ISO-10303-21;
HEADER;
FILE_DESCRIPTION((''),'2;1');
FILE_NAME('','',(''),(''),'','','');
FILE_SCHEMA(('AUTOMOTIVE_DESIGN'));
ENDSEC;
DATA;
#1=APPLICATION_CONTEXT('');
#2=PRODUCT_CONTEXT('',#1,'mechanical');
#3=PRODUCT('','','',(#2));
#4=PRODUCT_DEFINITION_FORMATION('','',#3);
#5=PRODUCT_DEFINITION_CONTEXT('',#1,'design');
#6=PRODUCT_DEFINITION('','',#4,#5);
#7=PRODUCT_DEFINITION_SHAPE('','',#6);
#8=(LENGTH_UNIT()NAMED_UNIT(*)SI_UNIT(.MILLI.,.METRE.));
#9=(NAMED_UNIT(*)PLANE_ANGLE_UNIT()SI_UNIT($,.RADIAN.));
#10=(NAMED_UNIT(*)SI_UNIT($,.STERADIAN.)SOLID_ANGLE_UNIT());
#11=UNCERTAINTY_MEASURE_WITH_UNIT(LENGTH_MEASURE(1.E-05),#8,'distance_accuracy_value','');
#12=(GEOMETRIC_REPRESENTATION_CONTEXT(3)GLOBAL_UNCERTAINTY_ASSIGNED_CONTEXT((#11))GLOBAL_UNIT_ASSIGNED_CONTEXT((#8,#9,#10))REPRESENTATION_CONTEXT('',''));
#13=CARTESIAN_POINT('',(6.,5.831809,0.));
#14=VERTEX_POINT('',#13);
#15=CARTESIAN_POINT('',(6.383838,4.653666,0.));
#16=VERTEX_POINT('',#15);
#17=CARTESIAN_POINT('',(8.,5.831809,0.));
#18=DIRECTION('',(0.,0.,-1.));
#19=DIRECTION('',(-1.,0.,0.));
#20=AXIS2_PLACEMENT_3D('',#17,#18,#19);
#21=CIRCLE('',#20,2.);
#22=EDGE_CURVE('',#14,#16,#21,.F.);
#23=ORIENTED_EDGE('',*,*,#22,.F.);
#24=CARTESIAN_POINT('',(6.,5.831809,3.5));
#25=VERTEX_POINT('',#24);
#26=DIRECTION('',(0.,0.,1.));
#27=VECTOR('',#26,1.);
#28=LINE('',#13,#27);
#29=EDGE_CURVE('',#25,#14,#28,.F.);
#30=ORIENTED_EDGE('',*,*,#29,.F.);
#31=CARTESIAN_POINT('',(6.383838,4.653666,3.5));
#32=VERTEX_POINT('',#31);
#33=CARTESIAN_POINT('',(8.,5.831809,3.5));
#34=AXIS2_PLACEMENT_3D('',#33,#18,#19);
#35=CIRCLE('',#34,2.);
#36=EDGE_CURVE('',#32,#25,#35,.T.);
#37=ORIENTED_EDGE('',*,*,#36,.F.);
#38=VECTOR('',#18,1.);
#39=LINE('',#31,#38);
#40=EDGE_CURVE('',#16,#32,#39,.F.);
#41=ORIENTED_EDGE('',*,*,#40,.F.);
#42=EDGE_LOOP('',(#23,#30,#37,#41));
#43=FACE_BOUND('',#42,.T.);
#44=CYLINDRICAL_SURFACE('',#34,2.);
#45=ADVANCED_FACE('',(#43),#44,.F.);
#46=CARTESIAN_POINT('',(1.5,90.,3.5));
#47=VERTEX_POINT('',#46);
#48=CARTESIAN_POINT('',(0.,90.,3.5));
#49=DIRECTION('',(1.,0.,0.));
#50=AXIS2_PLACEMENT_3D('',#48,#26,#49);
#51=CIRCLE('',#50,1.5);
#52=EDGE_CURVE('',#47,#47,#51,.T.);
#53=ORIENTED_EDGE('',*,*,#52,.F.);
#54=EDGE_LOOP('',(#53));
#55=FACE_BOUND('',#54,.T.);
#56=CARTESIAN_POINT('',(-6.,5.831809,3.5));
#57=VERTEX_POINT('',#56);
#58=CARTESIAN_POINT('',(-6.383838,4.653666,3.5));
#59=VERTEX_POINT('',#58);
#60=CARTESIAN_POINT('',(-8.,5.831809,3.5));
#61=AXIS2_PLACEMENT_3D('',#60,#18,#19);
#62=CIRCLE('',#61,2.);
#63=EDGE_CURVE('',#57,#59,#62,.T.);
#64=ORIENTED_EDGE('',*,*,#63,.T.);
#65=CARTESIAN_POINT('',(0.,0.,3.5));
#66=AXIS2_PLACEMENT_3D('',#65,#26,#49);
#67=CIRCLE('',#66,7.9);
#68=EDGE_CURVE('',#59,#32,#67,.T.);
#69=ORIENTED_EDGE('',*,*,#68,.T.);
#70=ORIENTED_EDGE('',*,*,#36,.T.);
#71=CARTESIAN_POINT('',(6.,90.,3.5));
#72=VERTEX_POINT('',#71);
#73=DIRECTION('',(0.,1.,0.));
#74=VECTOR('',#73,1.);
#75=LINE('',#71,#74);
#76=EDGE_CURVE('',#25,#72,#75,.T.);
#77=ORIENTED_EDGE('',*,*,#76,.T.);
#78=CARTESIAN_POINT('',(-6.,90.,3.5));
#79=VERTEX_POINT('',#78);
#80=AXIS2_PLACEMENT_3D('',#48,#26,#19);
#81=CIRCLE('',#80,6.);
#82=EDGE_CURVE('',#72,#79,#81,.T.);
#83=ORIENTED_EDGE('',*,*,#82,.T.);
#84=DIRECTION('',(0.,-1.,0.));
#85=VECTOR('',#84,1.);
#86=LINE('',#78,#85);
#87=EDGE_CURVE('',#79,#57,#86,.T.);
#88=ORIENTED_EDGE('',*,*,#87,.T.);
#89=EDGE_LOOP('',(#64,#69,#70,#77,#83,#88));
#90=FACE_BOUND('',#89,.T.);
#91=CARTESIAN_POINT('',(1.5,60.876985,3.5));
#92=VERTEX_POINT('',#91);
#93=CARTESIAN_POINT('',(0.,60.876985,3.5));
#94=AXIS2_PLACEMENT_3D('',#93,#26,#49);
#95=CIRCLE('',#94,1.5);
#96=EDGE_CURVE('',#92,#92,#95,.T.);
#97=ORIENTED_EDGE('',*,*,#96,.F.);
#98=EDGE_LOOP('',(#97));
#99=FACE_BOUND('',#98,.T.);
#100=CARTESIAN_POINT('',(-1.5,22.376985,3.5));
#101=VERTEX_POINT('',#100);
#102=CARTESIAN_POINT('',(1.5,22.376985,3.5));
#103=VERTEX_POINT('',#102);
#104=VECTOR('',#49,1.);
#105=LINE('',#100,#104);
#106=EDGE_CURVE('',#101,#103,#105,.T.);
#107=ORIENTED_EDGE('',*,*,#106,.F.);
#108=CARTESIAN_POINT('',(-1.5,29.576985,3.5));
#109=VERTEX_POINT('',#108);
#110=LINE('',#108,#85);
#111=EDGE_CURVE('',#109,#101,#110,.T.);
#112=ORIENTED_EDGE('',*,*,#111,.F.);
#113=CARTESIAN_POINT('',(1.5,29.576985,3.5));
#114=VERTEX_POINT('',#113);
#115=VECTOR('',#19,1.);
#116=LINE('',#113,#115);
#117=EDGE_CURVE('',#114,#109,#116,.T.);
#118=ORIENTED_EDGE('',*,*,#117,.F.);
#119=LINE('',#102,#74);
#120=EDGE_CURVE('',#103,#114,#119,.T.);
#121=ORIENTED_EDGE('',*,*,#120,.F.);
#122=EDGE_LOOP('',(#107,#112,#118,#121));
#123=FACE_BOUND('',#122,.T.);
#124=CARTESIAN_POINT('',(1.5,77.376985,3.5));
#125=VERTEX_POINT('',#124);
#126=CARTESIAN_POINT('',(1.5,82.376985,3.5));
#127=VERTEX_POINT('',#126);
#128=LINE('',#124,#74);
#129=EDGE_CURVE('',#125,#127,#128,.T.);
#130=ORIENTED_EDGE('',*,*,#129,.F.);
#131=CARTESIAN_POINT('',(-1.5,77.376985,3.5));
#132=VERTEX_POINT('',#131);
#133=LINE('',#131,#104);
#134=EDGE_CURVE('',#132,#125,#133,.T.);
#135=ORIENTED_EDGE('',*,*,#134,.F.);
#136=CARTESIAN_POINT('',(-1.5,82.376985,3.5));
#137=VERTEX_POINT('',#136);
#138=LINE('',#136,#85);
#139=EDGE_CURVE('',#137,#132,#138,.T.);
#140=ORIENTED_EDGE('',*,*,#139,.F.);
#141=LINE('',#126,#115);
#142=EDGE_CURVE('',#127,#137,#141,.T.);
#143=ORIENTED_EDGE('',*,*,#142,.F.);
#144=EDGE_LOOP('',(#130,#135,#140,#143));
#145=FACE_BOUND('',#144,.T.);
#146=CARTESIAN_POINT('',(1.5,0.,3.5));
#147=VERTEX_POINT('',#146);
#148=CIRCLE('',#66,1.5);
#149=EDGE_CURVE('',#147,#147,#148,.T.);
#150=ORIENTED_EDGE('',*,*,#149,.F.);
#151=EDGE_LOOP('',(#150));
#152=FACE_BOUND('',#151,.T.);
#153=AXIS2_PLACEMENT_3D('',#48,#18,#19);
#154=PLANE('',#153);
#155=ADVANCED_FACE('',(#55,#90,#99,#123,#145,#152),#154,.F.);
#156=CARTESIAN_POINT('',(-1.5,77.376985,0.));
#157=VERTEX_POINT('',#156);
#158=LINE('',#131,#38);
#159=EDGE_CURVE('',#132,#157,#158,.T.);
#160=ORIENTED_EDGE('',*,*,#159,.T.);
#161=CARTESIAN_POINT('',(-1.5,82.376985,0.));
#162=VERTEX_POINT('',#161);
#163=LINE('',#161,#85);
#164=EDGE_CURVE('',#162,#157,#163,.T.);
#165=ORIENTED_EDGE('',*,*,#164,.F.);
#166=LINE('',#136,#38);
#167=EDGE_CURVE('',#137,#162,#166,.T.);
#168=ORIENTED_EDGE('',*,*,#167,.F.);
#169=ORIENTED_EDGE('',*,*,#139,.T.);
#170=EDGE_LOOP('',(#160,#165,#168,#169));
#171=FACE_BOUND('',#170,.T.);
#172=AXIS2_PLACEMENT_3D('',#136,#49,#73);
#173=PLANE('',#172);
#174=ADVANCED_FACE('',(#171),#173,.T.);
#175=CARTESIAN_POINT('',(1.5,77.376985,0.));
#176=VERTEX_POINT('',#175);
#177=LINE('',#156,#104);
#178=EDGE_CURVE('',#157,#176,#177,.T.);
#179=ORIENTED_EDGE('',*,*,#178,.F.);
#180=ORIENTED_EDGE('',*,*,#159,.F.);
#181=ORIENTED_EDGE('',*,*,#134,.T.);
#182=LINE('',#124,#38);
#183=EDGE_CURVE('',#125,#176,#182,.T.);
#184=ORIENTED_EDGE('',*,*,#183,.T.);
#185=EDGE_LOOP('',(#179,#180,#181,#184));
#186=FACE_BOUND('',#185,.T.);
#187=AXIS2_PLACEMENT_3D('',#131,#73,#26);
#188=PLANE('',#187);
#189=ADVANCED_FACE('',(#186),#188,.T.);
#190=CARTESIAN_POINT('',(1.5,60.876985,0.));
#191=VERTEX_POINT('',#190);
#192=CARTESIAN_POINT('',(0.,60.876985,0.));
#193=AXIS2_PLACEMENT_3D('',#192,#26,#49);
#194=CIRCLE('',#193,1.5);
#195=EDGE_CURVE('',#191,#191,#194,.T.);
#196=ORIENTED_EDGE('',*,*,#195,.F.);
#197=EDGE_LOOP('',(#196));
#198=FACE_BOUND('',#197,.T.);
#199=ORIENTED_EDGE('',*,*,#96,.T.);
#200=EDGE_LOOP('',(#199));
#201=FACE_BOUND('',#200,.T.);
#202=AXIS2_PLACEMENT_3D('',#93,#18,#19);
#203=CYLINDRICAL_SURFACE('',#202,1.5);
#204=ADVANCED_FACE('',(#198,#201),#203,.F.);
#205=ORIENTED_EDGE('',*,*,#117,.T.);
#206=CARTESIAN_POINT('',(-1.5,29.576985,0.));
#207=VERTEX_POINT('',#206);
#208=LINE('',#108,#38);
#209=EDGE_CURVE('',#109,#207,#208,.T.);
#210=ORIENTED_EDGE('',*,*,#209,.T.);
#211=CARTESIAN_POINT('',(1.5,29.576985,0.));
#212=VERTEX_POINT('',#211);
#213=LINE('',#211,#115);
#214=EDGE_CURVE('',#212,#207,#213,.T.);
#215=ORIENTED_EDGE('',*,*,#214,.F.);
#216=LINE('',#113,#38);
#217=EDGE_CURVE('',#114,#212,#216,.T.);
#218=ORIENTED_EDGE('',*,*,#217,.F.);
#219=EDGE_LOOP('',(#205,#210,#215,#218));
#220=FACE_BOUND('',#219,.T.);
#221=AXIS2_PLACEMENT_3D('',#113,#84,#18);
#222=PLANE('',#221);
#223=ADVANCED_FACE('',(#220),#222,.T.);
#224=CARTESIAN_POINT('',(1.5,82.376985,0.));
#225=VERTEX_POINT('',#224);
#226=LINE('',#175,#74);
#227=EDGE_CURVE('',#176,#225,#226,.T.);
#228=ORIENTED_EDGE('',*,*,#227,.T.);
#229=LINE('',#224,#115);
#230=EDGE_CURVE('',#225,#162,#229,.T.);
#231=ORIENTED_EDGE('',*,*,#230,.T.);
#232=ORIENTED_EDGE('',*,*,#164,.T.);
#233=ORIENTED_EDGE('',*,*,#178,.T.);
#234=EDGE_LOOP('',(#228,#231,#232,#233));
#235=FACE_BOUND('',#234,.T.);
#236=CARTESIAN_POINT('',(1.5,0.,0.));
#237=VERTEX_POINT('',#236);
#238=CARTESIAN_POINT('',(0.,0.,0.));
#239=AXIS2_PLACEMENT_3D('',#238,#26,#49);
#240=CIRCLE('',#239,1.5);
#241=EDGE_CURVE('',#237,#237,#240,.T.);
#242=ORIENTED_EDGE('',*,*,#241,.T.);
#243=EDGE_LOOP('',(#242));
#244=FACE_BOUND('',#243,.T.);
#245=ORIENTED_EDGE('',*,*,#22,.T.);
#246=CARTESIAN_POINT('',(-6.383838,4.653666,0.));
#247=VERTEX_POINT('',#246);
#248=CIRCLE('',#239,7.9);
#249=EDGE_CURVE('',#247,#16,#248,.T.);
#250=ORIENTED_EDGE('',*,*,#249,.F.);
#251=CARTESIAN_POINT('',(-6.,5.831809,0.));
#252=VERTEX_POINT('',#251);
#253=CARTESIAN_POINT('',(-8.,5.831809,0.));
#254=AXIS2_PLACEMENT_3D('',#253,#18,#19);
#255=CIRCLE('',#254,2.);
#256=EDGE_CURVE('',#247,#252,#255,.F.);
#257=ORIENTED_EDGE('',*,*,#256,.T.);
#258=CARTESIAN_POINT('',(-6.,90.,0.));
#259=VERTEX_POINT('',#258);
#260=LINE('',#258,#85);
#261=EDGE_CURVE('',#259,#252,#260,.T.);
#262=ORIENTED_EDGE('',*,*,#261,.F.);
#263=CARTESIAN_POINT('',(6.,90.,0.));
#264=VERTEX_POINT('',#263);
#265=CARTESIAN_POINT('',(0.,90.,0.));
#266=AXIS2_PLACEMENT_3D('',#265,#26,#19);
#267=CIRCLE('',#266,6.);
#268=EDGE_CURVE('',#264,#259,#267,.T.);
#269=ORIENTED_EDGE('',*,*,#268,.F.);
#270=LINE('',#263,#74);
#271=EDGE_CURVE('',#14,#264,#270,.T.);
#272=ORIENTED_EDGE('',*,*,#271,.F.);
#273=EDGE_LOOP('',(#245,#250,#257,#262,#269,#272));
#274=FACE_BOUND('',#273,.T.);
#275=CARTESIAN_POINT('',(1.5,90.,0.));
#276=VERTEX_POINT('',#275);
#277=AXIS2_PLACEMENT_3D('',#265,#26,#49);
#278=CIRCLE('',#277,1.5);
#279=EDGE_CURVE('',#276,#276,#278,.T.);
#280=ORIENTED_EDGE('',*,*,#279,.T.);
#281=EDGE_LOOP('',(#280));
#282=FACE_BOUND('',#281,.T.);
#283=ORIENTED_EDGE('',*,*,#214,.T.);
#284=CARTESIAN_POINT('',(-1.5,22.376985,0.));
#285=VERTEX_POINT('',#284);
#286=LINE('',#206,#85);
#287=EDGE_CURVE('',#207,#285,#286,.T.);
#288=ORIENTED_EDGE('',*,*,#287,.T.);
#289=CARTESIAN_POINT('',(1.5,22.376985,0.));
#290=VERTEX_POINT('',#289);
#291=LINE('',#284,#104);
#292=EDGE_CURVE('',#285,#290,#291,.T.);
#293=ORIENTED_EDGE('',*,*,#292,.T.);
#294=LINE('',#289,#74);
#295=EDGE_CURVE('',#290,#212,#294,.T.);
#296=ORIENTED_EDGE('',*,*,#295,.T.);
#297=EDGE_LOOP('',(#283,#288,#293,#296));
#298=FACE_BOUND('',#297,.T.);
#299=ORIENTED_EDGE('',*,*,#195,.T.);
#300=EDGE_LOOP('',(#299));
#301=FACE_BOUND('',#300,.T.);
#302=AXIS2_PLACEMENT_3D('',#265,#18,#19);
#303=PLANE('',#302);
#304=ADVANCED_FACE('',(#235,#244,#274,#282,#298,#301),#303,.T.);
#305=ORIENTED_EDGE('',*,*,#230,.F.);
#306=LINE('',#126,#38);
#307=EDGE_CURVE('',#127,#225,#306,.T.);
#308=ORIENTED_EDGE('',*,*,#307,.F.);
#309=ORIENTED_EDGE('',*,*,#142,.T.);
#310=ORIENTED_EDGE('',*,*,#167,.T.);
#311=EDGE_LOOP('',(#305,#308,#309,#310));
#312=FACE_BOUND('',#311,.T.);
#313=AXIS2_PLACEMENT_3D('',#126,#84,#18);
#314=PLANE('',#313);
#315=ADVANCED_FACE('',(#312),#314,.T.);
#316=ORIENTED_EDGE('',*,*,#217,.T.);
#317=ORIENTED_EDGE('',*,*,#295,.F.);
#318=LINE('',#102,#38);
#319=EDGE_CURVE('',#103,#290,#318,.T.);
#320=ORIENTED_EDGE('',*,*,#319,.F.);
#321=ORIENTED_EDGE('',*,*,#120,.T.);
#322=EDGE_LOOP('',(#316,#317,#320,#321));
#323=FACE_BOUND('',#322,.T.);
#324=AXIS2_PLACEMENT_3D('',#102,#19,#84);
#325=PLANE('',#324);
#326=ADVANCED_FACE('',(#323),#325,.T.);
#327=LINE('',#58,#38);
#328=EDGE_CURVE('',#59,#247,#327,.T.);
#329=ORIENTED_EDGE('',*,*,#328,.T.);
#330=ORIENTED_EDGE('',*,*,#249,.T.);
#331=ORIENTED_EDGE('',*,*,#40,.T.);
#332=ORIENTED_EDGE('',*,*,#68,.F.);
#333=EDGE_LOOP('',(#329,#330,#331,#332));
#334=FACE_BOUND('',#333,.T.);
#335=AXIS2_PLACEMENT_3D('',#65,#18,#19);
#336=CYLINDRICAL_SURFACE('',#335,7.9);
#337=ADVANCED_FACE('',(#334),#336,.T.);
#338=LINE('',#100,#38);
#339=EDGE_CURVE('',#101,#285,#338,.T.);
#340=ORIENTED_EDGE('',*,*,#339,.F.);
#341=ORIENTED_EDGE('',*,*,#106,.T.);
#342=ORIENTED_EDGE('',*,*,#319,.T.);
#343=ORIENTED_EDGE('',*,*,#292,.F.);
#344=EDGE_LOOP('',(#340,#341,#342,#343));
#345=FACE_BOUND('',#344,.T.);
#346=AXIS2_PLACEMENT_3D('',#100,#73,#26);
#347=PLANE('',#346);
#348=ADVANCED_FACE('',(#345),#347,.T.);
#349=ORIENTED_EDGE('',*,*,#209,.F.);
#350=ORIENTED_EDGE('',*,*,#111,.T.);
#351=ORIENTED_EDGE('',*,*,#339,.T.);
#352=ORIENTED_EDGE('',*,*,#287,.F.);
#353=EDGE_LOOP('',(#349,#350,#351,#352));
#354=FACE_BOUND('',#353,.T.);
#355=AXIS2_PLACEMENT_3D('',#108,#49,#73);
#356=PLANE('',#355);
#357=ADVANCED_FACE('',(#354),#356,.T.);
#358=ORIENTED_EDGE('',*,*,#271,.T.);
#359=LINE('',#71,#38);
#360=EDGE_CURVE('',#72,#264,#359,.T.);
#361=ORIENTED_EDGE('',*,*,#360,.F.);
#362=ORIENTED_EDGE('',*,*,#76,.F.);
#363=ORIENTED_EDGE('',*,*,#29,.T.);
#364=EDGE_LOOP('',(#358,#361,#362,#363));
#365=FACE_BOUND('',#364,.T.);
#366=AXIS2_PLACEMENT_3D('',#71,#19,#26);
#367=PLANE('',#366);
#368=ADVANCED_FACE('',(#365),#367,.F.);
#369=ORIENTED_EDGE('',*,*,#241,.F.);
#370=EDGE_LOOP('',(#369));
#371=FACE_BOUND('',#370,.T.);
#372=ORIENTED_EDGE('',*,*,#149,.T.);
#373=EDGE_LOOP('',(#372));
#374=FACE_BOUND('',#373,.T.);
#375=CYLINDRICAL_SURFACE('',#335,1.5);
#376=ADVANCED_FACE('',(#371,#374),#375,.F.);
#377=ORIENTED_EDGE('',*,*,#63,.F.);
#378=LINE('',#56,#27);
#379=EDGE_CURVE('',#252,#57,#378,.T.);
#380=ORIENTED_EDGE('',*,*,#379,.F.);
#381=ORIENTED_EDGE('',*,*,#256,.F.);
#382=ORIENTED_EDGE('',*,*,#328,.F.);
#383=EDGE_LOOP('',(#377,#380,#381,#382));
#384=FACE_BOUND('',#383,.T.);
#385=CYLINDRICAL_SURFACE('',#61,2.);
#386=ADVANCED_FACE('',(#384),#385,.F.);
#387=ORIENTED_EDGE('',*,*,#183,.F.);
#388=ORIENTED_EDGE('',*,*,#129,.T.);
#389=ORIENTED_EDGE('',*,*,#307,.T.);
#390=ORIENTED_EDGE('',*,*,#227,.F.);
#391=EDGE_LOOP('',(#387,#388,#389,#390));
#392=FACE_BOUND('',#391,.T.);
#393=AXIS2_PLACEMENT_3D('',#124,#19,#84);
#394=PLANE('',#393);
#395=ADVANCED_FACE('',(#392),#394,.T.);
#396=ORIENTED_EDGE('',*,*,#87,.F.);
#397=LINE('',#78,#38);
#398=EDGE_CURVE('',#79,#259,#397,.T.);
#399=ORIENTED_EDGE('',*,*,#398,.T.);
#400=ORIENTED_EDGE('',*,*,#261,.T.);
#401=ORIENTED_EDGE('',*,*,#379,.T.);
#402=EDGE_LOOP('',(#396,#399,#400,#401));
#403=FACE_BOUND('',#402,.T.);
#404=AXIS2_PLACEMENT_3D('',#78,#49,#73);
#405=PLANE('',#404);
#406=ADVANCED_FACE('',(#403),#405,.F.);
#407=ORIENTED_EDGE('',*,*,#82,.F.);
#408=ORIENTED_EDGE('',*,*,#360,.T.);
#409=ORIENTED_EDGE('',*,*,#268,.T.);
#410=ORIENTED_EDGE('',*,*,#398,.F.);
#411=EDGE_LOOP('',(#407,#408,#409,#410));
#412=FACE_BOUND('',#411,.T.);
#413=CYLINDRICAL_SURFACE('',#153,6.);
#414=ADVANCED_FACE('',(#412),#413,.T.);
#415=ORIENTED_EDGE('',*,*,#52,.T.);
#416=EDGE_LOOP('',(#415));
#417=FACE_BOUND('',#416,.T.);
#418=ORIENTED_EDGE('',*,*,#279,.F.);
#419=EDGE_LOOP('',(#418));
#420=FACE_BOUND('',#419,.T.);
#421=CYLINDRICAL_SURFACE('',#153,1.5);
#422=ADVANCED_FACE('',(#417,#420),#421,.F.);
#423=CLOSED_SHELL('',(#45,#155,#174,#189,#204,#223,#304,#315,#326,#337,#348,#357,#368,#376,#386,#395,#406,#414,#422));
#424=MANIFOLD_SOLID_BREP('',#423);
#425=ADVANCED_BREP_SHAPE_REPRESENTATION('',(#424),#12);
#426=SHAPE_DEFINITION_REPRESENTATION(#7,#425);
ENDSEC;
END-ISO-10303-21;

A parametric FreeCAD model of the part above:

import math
import FreeCAD as App
import Part
import Sketcher
from FreeCAD import Vector
Q = App.Units.Quantity


def edges_at(feature, points):
    """Names of the edges that pass closest to the given points."""
    edges = feature.Shape.Edges
    near = lambda p: min(range(len(edges)), key=lambda i: edges[i].distToShape(Part.Vertex(*p))[0])
    return sorted({f"Edge{near(p) + 1}" for p in points})

doc = App.newDocument("Part")
body = doc.addObject("PartDesign::Body", "Body")

sketch1 = body.newObject("Sketcher::SketchObject", "Sketch")
sketch1.AttachmentSupport = (doc.getObject("XY_Plane"), [""])
sketch1.MapMode = "FlatFace"
sketch1.addGeometry([
    Part.LineSegment(Vector(-6, 90, 0), Vector(-6, 5.1, 0)),
    Part.ArcOfCircle(Part.Circle(Vector(0, 0, 0), Vector(0, 0, 1), 7.9), math.radians(139), math.radians(401)),
    Part.LineSegment(Vector(6, 5.1, 0), Vector(6, 90, 0)),
    Part.ArcOfCircle(Part.Circle(Vector(0, 90, 0), Vector(0, 0, 1), 6), math.radians(0), math.radians(180)),
    Part.Circle(Vector(0, 0, 0), Vector(0, 0, 1), 1.5),
    Part.LineSegment(Vector(1.5, 22.4, 0), Vector(-1.5, 22.4, 0)),
    Part.LineSegment(Vector(-1.5, 22.4, 0), Vector(-1.5, 29.6, 0)),
    Part.LineSegment(Vector(-1.5, 29.6, 0), Vector(1.5, 29.6, 0)),
    Part.LineSegment(Vector(1.5, 29.6, 0), Vector(1.5, 22.4, 0)),
    Part.Circle(Vector(0, 60.9, 0), Vector(0, 0, 1), 1.5),
    Part.LineSegment(Vector(1.5, 77.4, 0), Vector(-1.5, 77.4, 0)),
    Part.LineSegment(Vector(-1.5, 77.4, 0), Vector(-1.5, 82.4, 0)),
    Part.LineSegment(Vector(-1.5, 82.4, 0), Vector(1.5, 82.4, 0)),
    Part.LineSegment(Vector(1.5, 82.4, 0), Vector(1.5, 77.4, 0)),
    Part.Circle(Vector(0, 90, 0), Vector(0, 0, 1), 1.5),
], False)
sketch1.addConstraint([
    Sketcher.Constraint("Coincident", 0, 2, 1, 1),
    Sketcher.Constraint("Coincident", 1, 2, 2, 1),
    Sketcher.Constraint("Tangent", 2, 2, 3, 1),
    Sketcher.Constraint("Tangent", 3, 2, 0, 1),
    Sketcher.Constraint("Coincident", 5, 2, 6, 1),
    Sketcher.Constraint("Coincident", 6, 2, 7, 1),
    Sketcher.Constraint("Coincident", 7, 2, 8, 1),
    Sketcher.Constraint("Coincident", 8, 2, 5, 1),
    Sketcher.Constraint("Coincident", 10, 2, 11, 1),
    Sketcher.Constraint("Coincident", 11, 2, 12, 1),
    Sketcher.Constraint("Coincident", 12, 2, 13, 1),
    Sketcher.Constraint("Coincident", 13, 2, 10, 1),
    Sketcher.Constraint("Vertical", 0),
    Sketcher.Constraint("Vertical", 2),
    Sketcher.Constraint("Horizontal", 5),
    Sketcher.Constraint("Vertical", 6),
    Sketcher.Constraint("Horizontal", 7),
    Sketcher.Constraint("Vertical", 8),
    Sketcher.Constraint("Horizontal", 10),
    Sketcher.Constraint("Vertical", 11),
    Sketcher.Constraint("Horizontal", 12),
    Sketcher.Constraint("Vertical", 13),
    Sketcher.Constraint("Coincident", 1, 3, -1, 1),
    Sketcher.Constraint("Coincident", 4, 3, -1, 1),
    Sketcher.Constraint("Coincident", 14, 3, 3, 3),
    Sketcher.Constraint("Equal", 4, 9),
    Sketcher.Constraint("Equal", 9, 14),
    Sketcher.Constraint("PointOnObject", 3, 3, -2),
    Sketcher.Constraint("PointOnObject", 9, 3, -2),
    Sketcher.Constraint("Vertical", 6, 2, 10, 2),
    Sketcher.Constraint("Vertical", 8, 2, 12, 2),
    Sketcher.Constraint("Diameter", 4, Q("3 mm")),
    Sketcher.Constraint("Radius", 3, Q("6 mm")),
    Sketcher.Constraint("Radius", 1, Q("7.9 mm")),
    Sketcher.Constraint("DistanceX", 5, 2, 5, 1, Q("3 mm")),
    Sketcher.Constraint("DistanceY", 11, 1, 11, 2, Q("5 mm")),
    Sketcher.Constraint("DistanceY", 6, 1, 6, 2, Q("7.2 mm")),
    Sketcher.Constraint("DistanceY", -1, 1, 3, 3, Q("90 mm")),
    Sketcher.Constraint("DistanceX", 5, 2, -1, 1, Q("1.5 mm")),
    Sketcher.Constraint("DistanceY", 5, 2, 9, 3, Q("38.5 mm")),
    Sketcher.Constraint("DistanceY", 9, 3, 10, 2, Q("16.5 mm")),
    Sketcher.Constraint("DistanceY", 0, 2, 9, 3, Q("55.737919 mm")),
])
pad1 = body.newObject("PartDesign::Pad", "Pad")
pad1.Profile = sketch1
pad1.Length = 3.5
doc.recompute()

fillet = body.newObject("PartDesign::Fillet", "Fillet")
fillet.Base = (pad1, edges_at(pad1, [(6, 5.139, 1.75), (-6, 5.139, 1.75)]))
fillet.Radius = 2

doc.recompute()
